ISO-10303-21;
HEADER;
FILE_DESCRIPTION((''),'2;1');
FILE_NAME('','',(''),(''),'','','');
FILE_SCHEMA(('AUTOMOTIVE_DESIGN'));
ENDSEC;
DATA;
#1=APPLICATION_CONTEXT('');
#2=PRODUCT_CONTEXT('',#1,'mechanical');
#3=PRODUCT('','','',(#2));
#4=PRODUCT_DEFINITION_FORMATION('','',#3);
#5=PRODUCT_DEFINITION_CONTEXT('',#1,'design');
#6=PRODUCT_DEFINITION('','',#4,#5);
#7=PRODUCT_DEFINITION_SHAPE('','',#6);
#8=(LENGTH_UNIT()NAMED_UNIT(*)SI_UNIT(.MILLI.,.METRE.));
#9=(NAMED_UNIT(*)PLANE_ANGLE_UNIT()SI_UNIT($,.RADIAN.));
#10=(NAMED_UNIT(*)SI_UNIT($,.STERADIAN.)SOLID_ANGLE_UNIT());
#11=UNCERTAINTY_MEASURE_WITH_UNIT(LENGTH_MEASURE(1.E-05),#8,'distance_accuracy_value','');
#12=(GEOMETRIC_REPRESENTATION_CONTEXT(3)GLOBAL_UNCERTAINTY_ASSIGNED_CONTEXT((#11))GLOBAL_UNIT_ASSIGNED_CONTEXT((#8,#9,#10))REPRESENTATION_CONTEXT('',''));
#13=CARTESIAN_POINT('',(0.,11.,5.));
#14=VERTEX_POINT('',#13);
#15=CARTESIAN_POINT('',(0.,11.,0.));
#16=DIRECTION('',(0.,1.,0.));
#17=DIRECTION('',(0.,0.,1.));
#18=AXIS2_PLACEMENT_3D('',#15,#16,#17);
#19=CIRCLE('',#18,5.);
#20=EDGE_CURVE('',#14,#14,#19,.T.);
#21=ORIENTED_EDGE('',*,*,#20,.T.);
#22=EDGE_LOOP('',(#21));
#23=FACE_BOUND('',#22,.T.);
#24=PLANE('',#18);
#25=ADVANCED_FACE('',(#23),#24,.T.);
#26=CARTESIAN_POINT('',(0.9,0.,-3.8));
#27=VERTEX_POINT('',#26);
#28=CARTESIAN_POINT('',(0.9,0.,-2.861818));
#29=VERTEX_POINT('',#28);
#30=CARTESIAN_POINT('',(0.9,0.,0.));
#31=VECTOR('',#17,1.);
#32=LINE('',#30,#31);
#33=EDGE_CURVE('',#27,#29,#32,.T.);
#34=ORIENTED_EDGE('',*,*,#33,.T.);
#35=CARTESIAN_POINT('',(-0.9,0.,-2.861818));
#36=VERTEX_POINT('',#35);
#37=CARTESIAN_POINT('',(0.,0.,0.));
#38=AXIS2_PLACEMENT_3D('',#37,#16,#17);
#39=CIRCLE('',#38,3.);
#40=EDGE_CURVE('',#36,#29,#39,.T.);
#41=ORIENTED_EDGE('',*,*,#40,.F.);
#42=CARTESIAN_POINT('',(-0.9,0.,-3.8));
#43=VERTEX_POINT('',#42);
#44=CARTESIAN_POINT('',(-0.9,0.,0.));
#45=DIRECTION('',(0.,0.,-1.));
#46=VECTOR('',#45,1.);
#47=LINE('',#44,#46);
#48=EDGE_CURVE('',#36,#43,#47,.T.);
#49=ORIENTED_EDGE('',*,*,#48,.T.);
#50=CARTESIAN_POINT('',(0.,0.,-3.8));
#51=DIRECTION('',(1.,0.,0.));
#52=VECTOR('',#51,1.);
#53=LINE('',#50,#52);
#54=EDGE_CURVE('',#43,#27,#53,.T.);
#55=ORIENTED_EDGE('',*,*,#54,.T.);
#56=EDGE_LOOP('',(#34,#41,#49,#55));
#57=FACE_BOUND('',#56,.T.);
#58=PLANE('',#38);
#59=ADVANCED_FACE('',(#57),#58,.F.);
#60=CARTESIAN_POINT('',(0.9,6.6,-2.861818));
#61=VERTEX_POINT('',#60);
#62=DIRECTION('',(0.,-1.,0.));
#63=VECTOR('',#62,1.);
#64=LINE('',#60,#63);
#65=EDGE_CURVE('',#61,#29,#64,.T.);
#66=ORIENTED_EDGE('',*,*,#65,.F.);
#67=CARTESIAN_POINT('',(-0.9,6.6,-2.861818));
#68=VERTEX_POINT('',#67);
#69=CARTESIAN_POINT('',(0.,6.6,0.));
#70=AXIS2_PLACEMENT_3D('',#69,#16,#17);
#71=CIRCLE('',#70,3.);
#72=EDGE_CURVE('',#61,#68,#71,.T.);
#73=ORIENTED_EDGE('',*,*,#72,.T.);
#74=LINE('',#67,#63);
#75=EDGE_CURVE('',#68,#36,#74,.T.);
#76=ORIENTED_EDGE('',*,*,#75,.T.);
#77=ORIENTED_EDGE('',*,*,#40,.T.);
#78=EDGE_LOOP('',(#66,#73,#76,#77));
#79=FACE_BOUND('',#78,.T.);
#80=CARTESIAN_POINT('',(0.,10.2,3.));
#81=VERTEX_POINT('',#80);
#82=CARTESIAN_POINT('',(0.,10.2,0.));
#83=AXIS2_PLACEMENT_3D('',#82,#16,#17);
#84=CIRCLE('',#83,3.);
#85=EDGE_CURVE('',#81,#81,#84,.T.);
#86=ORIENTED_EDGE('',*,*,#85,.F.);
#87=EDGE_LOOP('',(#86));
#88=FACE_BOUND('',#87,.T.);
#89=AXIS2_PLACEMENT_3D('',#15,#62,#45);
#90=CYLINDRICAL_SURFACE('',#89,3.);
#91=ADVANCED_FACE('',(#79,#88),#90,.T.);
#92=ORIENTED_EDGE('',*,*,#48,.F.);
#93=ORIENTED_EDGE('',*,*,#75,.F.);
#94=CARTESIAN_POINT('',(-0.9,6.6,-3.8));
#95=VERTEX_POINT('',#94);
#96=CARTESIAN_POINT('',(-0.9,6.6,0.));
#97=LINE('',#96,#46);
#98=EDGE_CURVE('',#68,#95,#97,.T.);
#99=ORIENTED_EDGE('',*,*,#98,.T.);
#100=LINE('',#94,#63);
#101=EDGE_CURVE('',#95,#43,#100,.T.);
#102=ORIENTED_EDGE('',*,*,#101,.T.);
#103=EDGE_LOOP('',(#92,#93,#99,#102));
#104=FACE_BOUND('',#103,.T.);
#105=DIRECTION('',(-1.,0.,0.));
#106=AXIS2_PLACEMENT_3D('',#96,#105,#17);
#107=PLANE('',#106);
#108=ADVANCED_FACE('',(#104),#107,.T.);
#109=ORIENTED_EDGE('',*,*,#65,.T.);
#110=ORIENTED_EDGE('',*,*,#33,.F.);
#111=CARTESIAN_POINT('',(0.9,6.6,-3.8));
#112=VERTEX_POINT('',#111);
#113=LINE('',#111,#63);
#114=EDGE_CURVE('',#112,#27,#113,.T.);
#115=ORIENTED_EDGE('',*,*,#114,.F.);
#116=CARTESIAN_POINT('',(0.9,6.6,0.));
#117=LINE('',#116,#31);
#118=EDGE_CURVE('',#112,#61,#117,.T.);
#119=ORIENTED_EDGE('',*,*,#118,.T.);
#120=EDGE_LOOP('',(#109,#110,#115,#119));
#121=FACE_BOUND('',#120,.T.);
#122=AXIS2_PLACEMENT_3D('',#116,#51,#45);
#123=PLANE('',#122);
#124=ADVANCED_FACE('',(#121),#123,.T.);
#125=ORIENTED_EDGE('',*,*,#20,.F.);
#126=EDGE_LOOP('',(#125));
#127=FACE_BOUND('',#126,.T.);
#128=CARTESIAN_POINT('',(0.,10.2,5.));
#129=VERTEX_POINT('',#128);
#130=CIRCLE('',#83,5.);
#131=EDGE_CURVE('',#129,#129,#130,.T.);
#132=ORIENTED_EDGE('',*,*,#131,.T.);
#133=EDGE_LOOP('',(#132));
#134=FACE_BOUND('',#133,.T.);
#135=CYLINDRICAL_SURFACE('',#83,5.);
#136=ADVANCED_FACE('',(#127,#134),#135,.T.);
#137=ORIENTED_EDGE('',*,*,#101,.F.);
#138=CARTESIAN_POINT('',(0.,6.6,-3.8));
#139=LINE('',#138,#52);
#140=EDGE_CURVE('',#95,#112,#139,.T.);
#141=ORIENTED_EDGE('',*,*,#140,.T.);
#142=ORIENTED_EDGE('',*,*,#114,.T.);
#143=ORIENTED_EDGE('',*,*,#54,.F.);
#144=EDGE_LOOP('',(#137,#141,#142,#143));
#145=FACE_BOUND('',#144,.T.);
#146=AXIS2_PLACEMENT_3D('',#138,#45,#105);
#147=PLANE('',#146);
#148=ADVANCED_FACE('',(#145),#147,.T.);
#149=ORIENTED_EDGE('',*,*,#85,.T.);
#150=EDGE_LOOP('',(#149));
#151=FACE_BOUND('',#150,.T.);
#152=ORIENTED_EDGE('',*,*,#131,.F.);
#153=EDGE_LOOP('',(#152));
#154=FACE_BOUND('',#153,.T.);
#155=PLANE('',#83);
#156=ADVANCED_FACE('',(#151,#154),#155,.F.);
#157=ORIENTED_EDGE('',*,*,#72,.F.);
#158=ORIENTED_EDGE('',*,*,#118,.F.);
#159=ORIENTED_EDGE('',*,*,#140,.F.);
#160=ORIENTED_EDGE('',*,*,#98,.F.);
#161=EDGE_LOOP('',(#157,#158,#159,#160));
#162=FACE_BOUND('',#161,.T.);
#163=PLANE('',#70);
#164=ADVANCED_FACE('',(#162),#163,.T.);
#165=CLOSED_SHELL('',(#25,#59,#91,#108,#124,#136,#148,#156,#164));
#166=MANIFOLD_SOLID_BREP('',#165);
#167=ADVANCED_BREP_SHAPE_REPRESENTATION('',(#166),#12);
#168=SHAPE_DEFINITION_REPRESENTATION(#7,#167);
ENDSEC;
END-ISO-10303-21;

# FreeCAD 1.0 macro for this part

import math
import FreeCAD as App
import Part
import Sketcher

V = App.Vector

doc = App.newDocument("Part")
body = doc.addObject("PartDesign::Body", "Body")

sketch1 = doc.addObject("Sketcher::SketchObject", "Sketch")
body.addObject(sketch1)
sketch1.AttachmentSupport = (doc.XZ_Plane, [""])
sketch1.MapMode = "FlatFace"
sketch1.addGeometry(Part.Circle(V(0, 0, 0), V(0, 0, 1), 3), False)
sketch1.addConstraint([
    Sketcher.Constraint("Coincident", 0, 3, -1, 1),
    Sketcher.Constraint("Diameter", 0, 6.0),
])
pad1 = doc.addObject("PartDesign::Pad", "Pad")
body.addObject(pad1)
pad1.Profile = sketch1
pad1.Length = 11
pad1.Reversed = True

sketch2 = doc.addObject("Sketcher::SketchObject", "Sketch001")
body.addObject(sketch2)
sketch2.AttachmentSupport = (doc.XZ_Plane, [""])
sketch2.MapMode = "FlatFace"
sketch2.addGeometry([
    Part.LineSegment(V(-0.9, -3.8, 0), V(-0.9, -2.861818, 0)),
    Part.ArcOfCircle(Part.Circle(V(0, 0, 0), V(0, 0, 1), 3), math.radians(-107.457603), math.radians(-72.542397)),
    Part.LineSegment(V(0.9, -2.861818, 0), V(0.9, -3.8, 0)),
    Part.LineSegment(V(0.9, -3.8, 0), V(-0.9, -3.8, 0)),
], False)
sketch2.addConstraint([
    Sketcher.Constraint("Coincident", 0, 2, 1, 1),
    Sketcher.Constraint("Coincident", 1, 2, 2, 1),
    Sketcher.Constraint("Coincident", 2, 2, 3, 1),
    Sketcher.Constraint("Coincident", 3, 2, 0, 1),
    Sketcher.Constraint("Vertical", 0),
    Sketcher.Constraint("Vertical", 2),
    Sketcher.Constraint("Horizontal", 3),
    Sketcher.Constraint("Coincident", 1, 3, -1, 1),
    Sketcher.Constraint("Horizontal", 0, 2, 1, 2),
    Sketcher.Constraint("Radius", 1, 3.0),
    Sketcher.Constraint("DistanceX", 3, 2, 3, 1, 1.8),
    Sketcher.Constraint("DistanceY", 2, 2, -1, 1, 3.8),
])
pad2 = doc.addObject("PartDesign::Pad", "Pad001")
body.addObject(pad2)
pad2.Profile = sketch2
pad2.Length = 6.6
pad2.Reversed = True

sketch3 = doc.addObject("Sketcher::SketchObject", "Sketch002")
body.addObject(sketch3)
sketch3.AttachmentSupport = (doc.XZ_Plane, [""])
sketch3.MapMode = "FlatFace"
sketch3.AttachmentOffset = App.Placement(V(0, 0, -11), App.Rotation())
sketch3.addGeometry(Part.Circle(V(0, 0, 0), V(0, 0, 1), 5), False)
sketch3.addConstraint([
    Sketcher.Constraint("Coincident", 0, 3, -1, 1),
    Sketcher.Constraint("Diameter", 0, 10.0),
])
pad3 = doc.addObject("PartDesign::Pad", "Pad002")
body.addObject(pad3)
pad3.Profile = sketch3
pad3.Length = 0.8

doc.recompute()
